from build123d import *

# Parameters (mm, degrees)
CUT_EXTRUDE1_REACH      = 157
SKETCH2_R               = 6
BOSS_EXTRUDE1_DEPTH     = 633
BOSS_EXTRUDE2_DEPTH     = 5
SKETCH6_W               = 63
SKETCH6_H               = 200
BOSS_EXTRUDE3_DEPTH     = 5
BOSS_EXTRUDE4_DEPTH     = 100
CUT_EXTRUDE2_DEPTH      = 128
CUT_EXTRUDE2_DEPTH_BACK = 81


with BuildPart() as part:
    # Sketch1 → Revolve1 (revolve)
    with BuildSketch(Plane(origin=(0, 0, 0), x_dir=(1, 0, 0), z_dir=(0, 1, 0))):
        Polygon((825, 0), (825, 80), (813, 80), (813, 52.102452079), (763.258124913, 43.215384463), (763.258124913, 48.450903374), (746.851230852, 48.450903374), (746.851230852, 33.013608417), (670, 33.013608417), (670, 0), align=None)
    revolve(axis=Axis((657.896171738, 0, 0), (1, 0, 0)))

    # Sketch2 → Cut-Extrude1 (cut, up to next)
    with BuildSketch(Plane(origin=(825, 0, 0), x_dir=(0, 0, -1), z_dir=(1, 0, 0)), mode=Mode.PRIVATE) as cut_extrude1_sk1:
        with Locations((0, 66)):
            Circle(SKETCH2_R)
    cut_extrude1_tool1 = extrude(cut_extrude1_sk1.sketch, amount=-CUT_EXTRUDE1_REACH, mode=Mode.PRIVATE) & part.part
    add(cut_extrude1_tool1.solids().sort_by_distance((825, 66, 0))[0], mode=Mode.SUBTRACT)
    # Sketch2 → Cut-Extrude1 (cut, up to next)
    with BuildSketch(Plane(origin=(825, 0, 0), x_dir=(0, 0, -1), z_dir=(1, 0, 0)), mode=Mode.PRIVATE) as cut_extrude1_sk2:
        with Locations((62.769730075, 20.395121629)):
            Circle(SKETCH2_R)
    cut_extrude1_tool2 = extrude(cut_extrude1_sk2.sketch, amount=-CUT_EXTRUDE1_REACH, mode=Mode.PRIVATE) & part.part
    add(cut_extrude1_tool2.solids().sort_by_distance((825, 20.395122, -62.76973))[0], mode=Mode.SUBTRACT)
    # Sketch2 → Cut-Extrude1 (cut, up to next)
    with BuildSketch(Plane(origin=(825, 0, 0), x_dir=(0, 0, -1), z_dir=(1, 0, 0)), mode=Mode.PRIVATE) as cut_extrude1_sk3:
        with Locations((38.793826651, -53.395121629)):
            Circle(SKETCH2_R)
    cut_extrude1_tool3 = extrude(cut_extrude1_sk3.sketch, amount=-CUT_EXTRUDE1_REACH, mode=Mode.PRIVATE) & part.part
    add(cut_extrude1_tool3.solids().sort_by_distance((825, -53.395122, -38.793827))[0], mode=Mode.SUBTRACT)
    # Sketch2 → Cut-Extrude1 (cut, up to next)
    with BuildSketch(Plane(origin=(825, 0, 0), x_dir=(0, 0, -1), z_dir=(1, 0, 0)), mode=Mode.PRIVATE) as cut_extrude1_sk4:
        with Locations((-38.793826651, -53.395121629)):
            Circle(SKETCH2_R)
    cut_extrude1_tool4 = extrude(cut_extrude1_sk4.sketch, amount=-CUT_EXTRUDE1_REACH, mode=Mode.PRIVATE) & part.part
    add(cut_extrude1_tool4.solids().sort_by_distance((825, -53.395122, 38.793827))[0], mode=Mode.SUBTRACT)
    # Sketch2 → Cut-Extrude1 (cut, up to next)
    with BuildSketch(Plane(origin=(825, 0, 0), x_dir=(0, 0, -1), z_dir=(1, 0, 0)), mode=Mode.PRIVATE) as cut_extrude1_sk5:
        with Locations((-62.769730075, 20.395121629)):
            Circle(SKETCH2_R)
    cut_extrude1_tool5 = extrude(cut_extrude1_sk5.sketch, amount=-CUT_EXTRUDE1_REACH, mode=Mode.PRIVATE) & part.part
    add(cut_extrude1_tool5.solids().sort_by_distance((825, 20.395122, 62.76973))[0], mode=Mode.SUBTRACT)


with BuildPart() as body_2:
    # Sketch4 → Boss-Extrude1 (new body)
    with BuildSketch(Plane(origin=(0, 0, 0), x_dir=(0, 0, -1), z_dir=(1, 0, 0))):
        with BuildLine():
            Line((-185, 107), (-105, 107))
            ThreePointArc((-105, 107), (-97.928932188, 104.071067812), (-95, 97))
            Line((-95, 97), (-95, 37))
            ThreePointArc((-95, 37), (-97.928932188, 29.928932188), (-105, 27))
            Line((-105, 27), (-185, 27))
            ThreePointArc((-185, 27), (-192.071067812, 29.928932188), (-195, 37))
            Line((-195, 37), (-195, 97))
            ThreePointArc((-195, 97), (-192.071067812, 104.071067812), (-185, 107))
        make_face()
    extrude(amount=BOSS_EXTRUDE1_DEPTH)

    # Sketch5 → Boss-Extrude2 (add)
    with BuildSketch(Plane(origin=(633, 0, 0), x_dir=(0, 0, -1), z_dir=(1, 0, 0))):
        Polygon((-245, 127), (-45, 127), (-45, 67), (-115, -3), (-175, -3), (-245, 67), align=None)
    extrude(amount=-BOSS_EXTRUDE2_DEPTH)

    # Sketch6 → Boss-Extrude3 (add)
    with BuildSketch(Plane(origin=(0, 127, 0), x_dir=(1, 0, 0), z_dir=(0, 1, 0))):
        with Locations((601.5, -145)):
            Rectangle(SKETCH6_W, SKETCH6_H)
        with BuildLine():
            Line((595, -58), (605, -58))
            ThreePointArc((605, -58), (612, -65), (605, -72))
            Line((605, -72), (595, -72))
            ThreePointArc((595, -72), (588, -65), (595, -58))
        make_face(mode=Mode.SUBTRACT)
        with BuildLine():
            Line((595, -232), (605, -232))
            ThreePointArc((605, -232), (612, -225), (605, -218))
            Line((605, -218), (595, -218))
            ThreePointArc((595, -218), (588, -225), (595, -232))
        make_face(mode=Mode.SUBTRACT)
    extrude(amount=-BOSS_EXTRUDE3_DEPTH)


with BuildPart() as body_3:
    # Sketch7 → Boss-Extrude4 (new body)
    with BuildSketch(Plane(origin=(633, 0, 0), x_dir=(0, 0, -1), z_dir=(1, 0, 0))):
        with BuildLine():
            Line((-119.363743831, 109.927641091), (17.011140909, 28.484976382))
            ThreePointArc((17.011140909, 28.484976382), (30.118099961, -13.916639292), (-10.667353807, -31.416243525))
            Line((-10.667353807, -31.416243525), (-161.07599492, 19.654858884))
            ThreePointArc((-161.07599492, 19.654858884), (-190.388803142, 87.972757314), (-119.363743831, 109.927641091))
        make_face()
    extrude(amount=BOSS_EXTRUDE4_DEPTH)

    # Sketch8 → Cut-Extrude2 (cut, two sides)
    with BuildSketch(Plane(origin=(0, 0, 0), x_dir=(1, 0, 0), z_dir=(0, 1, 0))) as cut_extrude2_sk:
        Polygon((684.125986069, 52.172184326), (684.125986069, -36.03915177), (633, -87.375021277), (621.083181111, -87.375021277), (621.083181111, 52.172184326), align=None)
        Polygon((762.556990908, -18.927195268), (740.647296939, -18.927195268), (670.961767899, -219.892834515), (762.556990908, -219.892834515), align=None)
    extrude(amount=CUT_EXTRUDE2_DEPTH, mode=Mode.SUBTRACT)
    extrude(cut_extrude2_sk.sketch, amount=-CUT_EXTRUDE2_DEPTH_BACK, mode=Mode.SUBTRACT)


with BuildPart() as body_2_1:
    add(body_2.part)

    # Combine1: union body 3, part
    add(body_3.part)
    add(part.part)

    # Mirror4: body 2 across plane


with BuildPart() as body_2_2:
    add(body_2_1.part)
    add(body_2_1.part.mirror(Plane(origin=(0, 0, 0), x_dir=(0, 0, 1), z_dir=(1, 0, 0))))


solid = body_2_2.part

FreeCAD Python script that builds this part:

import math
import FreeCAD as App
import Part
import Sketcher

V = App.Vector

doc = App.newDocument("Part")
body = doc.addObject("PartDesign::Body", "Body")

# Sketch on XZ plane
sketch1 = doc.addObject("Sketcher::SketchObject", "Sketch")
body.addObject(sketch1)
sketch1.AttachmentSupport = (doc.XZ_Plane, [""])
sketch1.MapMode = "FlatFace"
sketch1.addGeometry([
    Part.LineSegment(V(825, 0, 0), V(825, -80, 0)),  # 0
    Part.LineSegment(V(825, -80, 0), V(813, -80, 0)),  # 1
    Part.LineSegment(V(813, -80, 0), V(813, -52, 0)),  # 2
    Part.LineSegment(V(813, -52, 0), V(763, -43, 0)),  # 3
    Part.LineSegment(V(763, -43, 0), V(763, -48, 0)),  # 4
    Part.LineSegment(V(763, -48, 0), V(747, -48, 0)),  # 5
    Part.LineSegment(V(747, -48, 0), V(747, -33, 0)),  # 6
    Part.LineSegment(V(747, -33, 0), V(670, -33, 0)),  # 7
    Part.LineSegment(V(670, -33, 0), V(670, 0, 0)),  # 8
    Part.LineSegment(V(670, 0, 0), V(825, 0, 0)),  # 9
], False)
sketch1.addConstraint([
    Sketcher.Constraint("Coincident", 0, 2, 1, 1),
    Sketcher.Constraint("Coincident", 1, 2, 2, 1),
    Sketcher.Constraint("Coincident", 2, 2, 3, 1),
    Sketcher.Constraint("Coincident", 3, 2, 4, 1),
    Sketcher.Constraint("Coincident", 4, 2, 5, 1),
    Sketcher.Constraint("Coincident", 5, 2, 6, 1),
    Sketcher.Constraint("Coincident", 6, 2, 7, 1),
    Sketcher.Constraint("Coincident", 7, 2, 8, 1),
    Sketcher.Constraint("Coincident", 8, 2, 9, 1),
    Sketcher.Constraint("Coincident", 9, 2, 0, 1),
    Sketcher.Constraint("Vertical", 0),
    Sketcher.Constraint("Horizontal", 1),
    Sketcher.Constraint("Vertical", 2),
    Sketcher.Constraint("Vertical", 4),
    Sketcher.Constraint("Horizontal", 5),
    Sketcher.Constraint("Vertical", 6),
    Sketcher.Constraint("Horizontal", 7),
    Sketcher.Constraint("Vertical", 8),
    Sketcher.Constraint("Horizontal", 9),
    Sketcher.Constraint("PointOnObject", 8, 2, -1),
    Sketcher.Constraint("DistanceX", 1, 2, 1, 1, 12.0),
    Sketcher.Constraint("DistanceX", 9, 1, 9, 2, 155.0),
    Sketcher.Constraint("DistanceY", 0, 2, 0, 1, 80.0),
    Sketcher.Constraint("DistanceX", -1, 1, 0, 2, 825.0),
    Sketcher.Constraint("DistanceX", 7, 2, 7, 1, 76.851231),
    Sketcher.Constraint("DistanceY", 4, 2, 4, 1, 5.235519),
    Sketcher.Constraint("DistanceY", 8, 1, 8, 2, 33.013608),
    Sketcher.Constraint("DistanceX", 5, 2, 5, 1, 16.406894),
    Sketcher.Constraint("DistanceY", 2, 1, 2, 2, 27.897548),
    Sketcher.Constraint("DistanceY", 6, 1, 6, 2, 15.437295),
])
revolution = doc.addObject("PartDesign::Revolution", "Revolution")
body.addObject(revolution)
revolution.Profile = sketch1
revolution.ReferenceAxis = (sketch1, ["H_Axis"])
revolution.Angle = 360

# Sketch on YZ plane
sketch2 = doc.addObject("Sketcher::SketchObject", "Sketch001")
body.addObject(sketch2)
sketch2.AttachmentSupport = (doc.YZ_Plane, [""])
sketch2.MapMode = "FlatFace"
sketch2.AttachmentOffset = App.Placement(V(0, 0, 825), App.Rotation())
sketch2.addGeometry(Part.Circle(V(66, 0, 0), V(0, 0, 1), 6), False)
sketch2.addConstraint([
    Sketcher.Constraint("PointOnObject", 0, 3, -1),
    Sketcher.Constraint("Diameter", 0, 12.0),
    Sketcher.Constraint("DistanceX", -1, 1, 0, 3, 66.0),
])
pocket1 = doc.addObject("PartDesign::Pocket", "Pocket")
body.addObject(pocket1)
pocket1.Profile = sketch2
pocket1.Type = "UpToFirst"

# Sketch on YZ plane
sketch3 = doc.addObject("Sketcher::SketchObject", "Sketch002")
body.addObject(sketch3)
sketch3.AttachmentSupport = (doc.YZ_Plane, [""])
sketch3.MapMode = "FlatFace"
sketch3.AttachmentOffset = App.Placement(V(0, 0, 825), App.Rotation())
sketch3.addGeometry(Part.Circle(V(20, -63, 0), V(0, 0, 1), 6), False)
sketch3.addConstraint([
    Sketcher.Constraint("Diameter", 0, 12.0),
    Sketcher.Constraint("DistanceX", -1, 1, 0, 3, 20.395122),
    Sketcher.Constraint("DistanceY", 0, 3, -1, 1, 62.76973),
])
pocket2 = doc.addObject("PartDesign::Pocket", "Pocket001")
body.addObject(pocket2)
pocket2.Profile = sketch3
pocket2.Type = "UpToFirst"

# Sketch on YZ plane
sketch4 = doc.addObject("Sketcher::SketchObject", "Sketch003")
body.addObject(sketch4)
sketch4.AttachmentSupport = (doc.YZ_Plane, [""])
sketch4.MapMode = "FlatFace"
sketch4.AttachmentOffset = App.Placement(V(0, 0, 825), App.Rotation())
sketch4.addGeometry(Part.Circle(V(-53, -39, 0), V(0, 0, 1), 6), False)
sketch4.addConstraint([
    Sketcher.Constraint("Diameter", 0, 12.0),
    Sketcher.Constraint("DistanceX", 0, 3, -1, 1, 53.395122),
    Sketcher.Constraint("DistanceY", 0, 3, -1, 1, 38.793827),
])
pocket3 = doc.addObject("PartDesign::Pocket", "Pocket002")
body.addObject(pocket3)
pocket3.Profile = sketch4
pocket3.Type = "UpToFirst"

# Sketch on YZ plane
sketch5 = doc.addObject("Sketcher::SketchObject", "Sketch004")
body.addObject(sketch5)
sketch5.AttachmentSupport = (doc.YZ_Plane, [""])
sketch5.MapMode = "FlatFace"
sketch5.AttachmentOffset = App.Placement(V(0, 0, 825), App.Rotation())
sketch5.addGeometry(Part.Circle(V(-53, 39, 0), V(0, 0, 1), 6), False)
sketch5.addConstraint([
    Sketcher.Constraint("Diameter", 0, 12.0),
    Sketcher.Constraint("DistanceX", 0, 3, -1, 1, 53.395122),
    Sketcher.Constraint("DistanceY", -1, 1, 0, 3, 38.793827),
])
pocket4 = doc.addObject("PartDesign::Pocket", "Pocket003")
body.addObject(pocket4)
pocket4.Profile = sketch5
pocket4.Type = "UpToFirst"

# Sketch on YZ plane
sketch6 = doc.addObject("Sketcher::SketchObject", "Sketch005")
body.addObject(sketch6)
sketch6.AttachmentSupport = (doc.YZ_Plane, [""])
sketch6.MapMode = "FlatFace"
sketch6.AttachmentOffset = App.Placement(V(0, 0, 825), App.Rotation())
sketch6.addGeometry(Part.Circle(V(20, 63, 0), V(0, 0, 1), 6), False)
sketch6.addConstraint([
    Sketcher.Constraint("Diameter", 0, 12.0),
    Sketcher.Constraint("DistanceX", -1, 1, 0, 3, 20.395122),
    Sketcher.Constraint("DistanceY", -1, 1, 0, 3, 62.76973),
])
pocket5 = doc.addObject("PartDesign::Pocket", "Pocket004")
body.addObject(pocket5)
pocket5.Profile = sketch6
pocket5.Type = "UpToFirst"
body2 = doc.addObject("PartDesign::Body", "Body001")

# Sketch on YZ plane
sketch7 = doc.addObject("Sketcher::SketchObject", "Sketch006")
body2.addObject(sketch7)
sketch7.AttachmentSupport = (doc.getObject("YZ_Plane001"), [""])
sketch7.MapMode = "FlatFace"
sketch7.addGeometry([
    Part.LineSegment(V(107, 105, 0), V(107, 185, 0)),  # 0
    Part.ArcOfCircle(Part.Circle(V(97, 185, 0), V(0, 0, 1), 10), math.radians(0), math.radians(90)),  # 1
    Part.LineSegment(V(97, 195, 0), V(37, 195, 0)),  # 2
    Part.ArcOfCircle(Part.Circle(V(37, 185, 0), V(0, 0, 1), 10), math.radians(90), math.radians(180)),  # 3
    Part.LineSegment(V(27, 185, 0), V(27, 105, 0)),  # 4
    Part.ArcOfCircle(Part.Circle(V(37, 105, 0), V(0, 0, 1), 10), math.radians(180), math.radians(270)),  # 5
    Part.LineSegment(V(37, 95, 0), V(97, 95, 0)),  # 6
    Part.ArcOfCircle(Part.Circle(V(97, 105, 0), V(0, 0, 1), 10), math.radians(-90), math.radians(0)),  # 7
], False)
sketch7.addConstraint([
    Sketcher.Constraint("Tangent", 0, 2, 1, 1),
    Sketcher.Constraint("Tangent", 1, 2, 2, 1),
    Sketcher.Constraint("Tangent", 2, 2, 3, 1),
    Sketcher.Constraint("Tangent", 3, 2, 4, 1),
    Sketcher.Constraint("Tangent", 4, 2, 5, 1),
    Sketcher.Constraint("Tangent", 5, 2, 6, 1),
    Sketcher.Constraint("Tangent", 6, 2, 7, 1),
    Sketcher.Constraint("Tangent", 7, 2, 0, 1),
    Sketcher.Constraint("Vertical", 0),
    Sketcher.Constraint("Horizontal", 2),
    Sketcher.Constraint("Vertical", 4),
    Sketcher.Constraint("Horizontal", 6),
    Sketcher.Constraint("Equal", 1, 3),
    Sketcher.Constraint("Equal", 3, 5),
    Sketcher.Constraint("Equal", 5, 7),
    Sketcher.Constraint("Radius", 1, 10.0),
    Sketcher.Constraint("DistanceX", 2, 2, 2, 1, 60.0),
    Sketcher.Constraint("DistanceY", 0, 1, 0, 2, 80.0),
    Sketcher.Constraint("DistanceX", -1, 1, 1, 3, 97.0),
    Sketcher.Constraint("DistanceY", -1, 1, 1, 3, 185.0),
])
pad1 = doc.addObject("PartDesign::Pad", "Pad")
body2.addObject(pad1)
pad1.Profile = sketch7
pad1.Length = 633

# Sketch on YZ plane
sketch8 = doc.addObject("Sketcher::SketchObject", "Sketch007")
body2.addObject(sketch8)
sketch8.AttachmentSupport = (doc.getObject("YZ_Plane001"), [""])
sketch8.MapMode = "FlatFace"
sketch8.AttachmentOffset = App.Placement(V(0, 0, 633), App.Rotation())
sketch8.addGeometry([
    Part.LineSegment(V(127, 45, 0), V(127, 245, 0)),  # 0
    Part.LineSegment(V(127, 245, 0), V(67, 245, 0)),  # 1
    Part.LineSegment(V(67, 245, 0), V(-3, 175, 0)),  # 2
    Part.LineSegment(V(-3, 175, 0), V(-3, 115, 0)),  # 3
    Part.LineSegment(V(-3, 115, 0), V(67, 45, 0)),  # 4
    Part.LineSegment(V(67, 45, 0), V(127, 45, 0)),  # 5
], False)
sketch8.addConstraint([
    Sketcher.Constraint("Coincident", 0, 2, 1, 1),
    Sketcher.Constraint("Coincident", 1, 2, 2, 1),
    Sketcher.Constraint("Coincident", 2, 2, 3, 1),
    Sketcher.Constraint("Coincident", 3, 2, 4, 1),
    Sketcher.Constraint("Coincident", 4, 2, 5, 1),
    Sketcher.Constraint("Coincident", 5, 2, 0, 1),
    Sketcher.Constraint("Vertical", 0),
    Sketcher.Constraint("Horizontal", 1),
    Sketcher.Constraint("Vertical", 3),
    Sketcher.Constraint("Horizontal", 5),
    Sketcher.Constraint("Perpendicular", 2, 4),
    Sketcher.Constraint("Vertical", 1, 2, 4, 2),
    Sketcher.Constraint("Equal", 5, 3),
    Sketcher.Constraint("Equal", 2, 4),
    Sketcher.Constraint("DistanceX", 1, 2, 1, 1, 60.0),
    Sketcher.Constraint("DistanceY", 0, 1, 0, 2, 200.0),
    Sketcher.Constraint("DistanceX", -1, 1, 0, 2, 127.0),
    Sketcher.Constraint("DistanceY", -1, 1, 0, 2, 245.0),
])
pad2 = doc.addObject("PartDesign::Pad", "Pad001")
body2.addObject(pad2)
pad2.Profile = sketch8
pad2.Length = 5
pad2.Reversed = True

# Sketch on XZ plane
sketch9 = doc.addObject("Sketcher::SketchObject", "Sketch008")
body2.addObject(sketch9)
sketch9.AttachmentSupport = (doc.getObject("XZ_Plane001"), [""])
sketch9.MapMode = "FlatFace"
sketch9.AttachmentOffset = App.Placement(V(0, 0, -127), App.Rotation())
sketch9.addGeometry([
    Part.LineSegment(V(570, 45, 0), V(570, 245, 0)),  # 0
    Part.LineSegment(V(570, 245, 0), V(633, 245, 0)),  # 1
    Part.LineSegment(V(633, 245, 0), V(633, 45, 0)),  # 2
    Part.LineSegment(V(633, 45, 0), V(570, 45, 0)),  # 3
    Part.LineSegment(V(605, 232, 0), V(595, 232, 0)),  # 4
    Part.ArcOfCircle(Part.Circle(V(595, 225, 0), V(0, 0, 1), 7), math.radians(90), math.radians(270)),  # 5
    Part.LineSegment(V(595, 218, 0), V(605, 218, 0)),  # 6
    Part.ArcOfCircle(Part.Circle(V(605, 225, 0), V(0, 0, 1), 7), math.radians(-90), math.radians(90)),  # 7
    Part.ArcOfCircle(Part.Circle(V(595, 65, 0), V(0, 0, 1), 7), math.radians(90), math.radians(270)),  # 8
    Part.LineSegment(V(595, 58, 0), V(605, 58, 0)),  # 9
    Part.ArcOfCircle(Part.Circle(V(605, 65, 0), V(0, 0, 1), 7), math.radians(-90), math.radians(90)),  # 10
    Part.LineSegment(V(605, 72, 0), V(595, 72, 0)),  # 11
], False)
sketch9.addConstraint([
    Sketcher.Constraint("Coincident", 0, 2, 1, 1),
    Sketcher.Constraint("Coincident", 1, 2, 2, 1),
    Sketcher.Constraint("Coincident", 2, 2, 3, 1),
    Sketcher.Constraint("Coincident", 3, 2, 0, 1),
    Sketcher.Constraint("Tangent", 4, 2, 5, 1),
    Sketcher.Constraint("Tangent", 5, 2, 6, 1),
    Sketcher.Constraint("Tangent", 6, 2, 7, 1),
    Sketcher.Constraint("Tangent", 7, 2, 4, 1),
    Sketcher.Constraint("Tangent", 8, 2, 9, 1),
    Sketcher.Constraint("Tangent", 9, 2, 10, 1),
    Sketcher.Constraint("Tangent", 10, 2, 11, 1),
    Sketcher.Constraint("Tangent", 11, 2, 8, 1),
    Sketcher.Constraint("Vertical", 0),
    Sketcher.Constraint("Horizontal", 1),
    Sketcher.Constraint("Vertical", 2),
    Sketcher.Constraint("Horizontal", 3),
    Sketcher.Constraint("Horizontal", 4),
    Sketcher.Constraint("Horizontal", 6),
    Sketcher.Constraint("Horizontal", 9),
    Sketcher.Constraint("Horizontal", 11),
    Sketcher.Constraint("Equal", 7, 8),
    Sketcher.Constraint("Vertical", 5, 3, 8, 3),
    Sketcher.Constraint("Vertical", 7, 3, 10, 3),
    Sketcher.Constraint("Radius", 5, 7.0),
    Sketcher.Constraint("DistanceX", 1, 1, 1, 2, 63.0),
    Sketcher.Constraint("DistanceX", 4, 2, 4, 1, 10.0),
    Sketcher.Constraint("DistanceY", 0, 1, 0, 2, 200.0),
    Sketcher.Constraint("DistanceX", -1, 1, 5, 3, 595.0),
    Sketcher.Constraint("DistanceY", -1, 1, 5, 3, 225.0),
    Sketcher.Constraint("DistanceY", -1, 1, 8, 3, 65.0),
    Sketcher.Constraint("DistanceX", -1, 1, 0, 2, 570.0),
    Sketcher.Constraint("DistanceY", -1, 1, 0, 2, 245.0),
])
pad3 = doc.addObject("PartDesign::Pad", "Pad002")
body2.addObject(pad3)
pad3.Profile = sketch9
pad3.Length = 5
body3 = doc.addObject("PartDesign::Body", "Body002")

# Sketch on YZ plane
sketch10 = doc.addObject("Sketcher::SketchObject", "Sketch009")
body3.addObject(sketch10)
sketch10.AttachmentSupport = (doc.getObject("YZ_Plane002"), [""])
sketch10.MapMode = "FlatFace"
sketch10.AttachmentOffset = App.Placement(V(0, 0, 633), App.Rotation())
sketch10.addGeometry([
    Part.LineSegment(V(28, -17, 0), V(110, 119, 0)),
    Part.ArcOfCircle(Part.Circle(V(67, 145, 0), V(0, 0, 1), 50), math.radians(-31), math.radians(161)),
    Part.LineSegment(V(20, 161, 0), V(-31, 11, 0)),
    Part.ArcOfCircle(Part.Circle(V(0, 0, 0), V(0, 0, 1), 33), math.radians(161), math.radians(329)),
], False)
sketch10.addConstraint([
    Sketcher.Constraint("Tangent", 0, 2, 1, 1),
    Sketcher.Constraint("Tangent", 1, 2, 2, 1),
    Sketcher.Constraint("Tangent", 2, 2, 3, 1),
    Sketcher.Constraint("Tangent", 3, 2, 0, 1),
    Sketcher.Constraint("Coincident", 3, 3, -1, 1),
    Sketcher.Constraint("Radius", 1, 50.0),
    Sketcher.Constraint("DistanceX", -1, 1, 1, 3, 67.0),
    Sketcher.Constraint("DistanceY", -1, 1, 1, 3, 145.0),
    Sketcher.Constraint("Radius", 3, 33.177896),
])
pad4 = doc.addObject("PartDesign::Pad", "Pad003")
body3.addObject(pad4)
pad4.Profile = sketch10
pad4.Length = 100

# Sketch on XZ plane
sketch11 = doc.addObject("Sketcher::SketchObject", "Sketch010")
body3.addObject(sketch11)
sketch11.AttachmentSupport = (doc.getObject("XZ_Plane002"), [""])
sketch11.MapMode = "FlatFace"
sketch11.addGeometry([
    Part.LineSegment(V(684, 36, 0), V(684, -52, 0)),  # 0
    Part.LineSegment(V(684, -52, 0), V(621, -52, 0)),  # 1
    Part.LineSegment(V(621, -52, 0), V(621, 87, 0)),  # 2
    Part.LineSegment(V(621, 87, 0), V(633, 87, 0)),  # 3
    Part.LineSegment(V(633, 87, 0), V(684, 36, 0)),  # 4
    Part.LineSegment(V(763, 19, 0), V(741, 19, 0)),  # 5
    Part.LineSegment(V(741, 19, 0), V(671, 220, 0)),  # 6
    Part.LineSegment(V(671, 220, 0), V(763, 220, 0)),  # 7
    Part.LineSegment(V(763, 220, 0), V(763, 19, 0)),  # 8
], False)
sketch11.addConstraint([
    Sketcher.Constraint("Coincident", 0, 2, 1, 1),
    Sketcher.Constraint("Coincident", 1, 2, 2, 1),
    Sketcher.Constraint("Coincident", 2, 2, 3, 1),
    Sketcher.Constraint("Coincident", 3, 2, 4, 1),
    Sketcher.Constraint("Coincident", 4, 2, 0, 1),
    Sketcher.Constraint("Coincident", 5, 2, 6, 1),
    Sketcher.Constraint("Coincident", 6, 2, 7, 1),
    Sketcher.Constraint("Coincident", 7, 2, 8, 1),
    Sketcher.Constraint("Coincident", 8, 2, 5, 1),
    Sketcher.Constraint("Vertical", 0),
    Sketcher.Constraint("Horizontal", 1),
    Sketcher.Constraint("Vertical", 2),
    Sketcher.Constraint("Horizontal", 3),
    Sketcher.Constraint("Horizontal", 5),
    Sketcher.Constraint("Horizontal", 7),
    Sketcher.Constraint("Vertical", 8),
    Sketcher.Constraint("DistanceX", -1, 1, 3, 2, 633.0),
    Sketcher.Constraint("DistanceX", 3, 1, 3, 2, 11.916819),
    Sketcher.Constraint("DistanceY", 8, 2, 8, 1, 200.965639),
    Sketcher.Constraint("DistanceX", 1, 2, 1, 1, 63.042805),
    Sketcher.Constraint("DistanceX", 5, 2, 5, 1, 21.909694),
    Sketcher.Constraint("DistanceX", 7, 1, 7, 2, 91.595223),
    Sketcher.Constraint("DistanceY", 0, 2, 0, 1, 88.211336),
    Sketcher.Constraint("DistanceY", 2, 1, 2, 2, 139.547206),
    Sketcher.Constraint("DistanceY", -1, 1, 2, 2, 87.375021),
    Sketcher.Constraint("DistanceX", -1, 1, 7, 2, 762.556991),
    Sketcher.Constraint("DistanceY", 0, 2, 5, 2, 71.09938),
])
pocket6 = doc.addObject("PartDesign::Pocket", "Pocket005")
body3.addObject(pocket6)
pocket6.Profile = sketch11
pocket6.Type = "ThroughAll"
pocket6.Midplane = True
doc.recompute()

boolean = doc.addObject("PartDesign::Boolean", "Boolean")
body2.addObject(boolean)
boolean.Type = "Fuse"
boolean.addObjects([body3])
doc.recompute()

boolean2 = doc.addObject("PartDesign::Boolean", "Boolean001")
body2.addObject(boolean2)
boolean2.Type = "Fuse"
boolean2.addObjects([body])
body4 = doc.addObject("PartDesign::Body", "Body003")
doc.recompute()

body4.BaseFeature = body2
doc.recompute()

mirroring = doc.addObject("Part::Mirroring", "Mirroring")
mirroring.Source = body2
mirroring.Base = V(0, 0, 0)
mirroring.Normal = V(1, 0, 0)
body5 = doc.addObject("PartDesign::Body", "Body004")
body5.BaseFeature = mirroring
boolean3 = doc.addObject("PartDesign::Boolean", "Boolean002")
body4.addObject(boolean3)
boolean3.Type = "Fuse"
boolean3.addObjects([body5])
doc.recompute()
mirroring.Visibility = False

doc.recompute()
